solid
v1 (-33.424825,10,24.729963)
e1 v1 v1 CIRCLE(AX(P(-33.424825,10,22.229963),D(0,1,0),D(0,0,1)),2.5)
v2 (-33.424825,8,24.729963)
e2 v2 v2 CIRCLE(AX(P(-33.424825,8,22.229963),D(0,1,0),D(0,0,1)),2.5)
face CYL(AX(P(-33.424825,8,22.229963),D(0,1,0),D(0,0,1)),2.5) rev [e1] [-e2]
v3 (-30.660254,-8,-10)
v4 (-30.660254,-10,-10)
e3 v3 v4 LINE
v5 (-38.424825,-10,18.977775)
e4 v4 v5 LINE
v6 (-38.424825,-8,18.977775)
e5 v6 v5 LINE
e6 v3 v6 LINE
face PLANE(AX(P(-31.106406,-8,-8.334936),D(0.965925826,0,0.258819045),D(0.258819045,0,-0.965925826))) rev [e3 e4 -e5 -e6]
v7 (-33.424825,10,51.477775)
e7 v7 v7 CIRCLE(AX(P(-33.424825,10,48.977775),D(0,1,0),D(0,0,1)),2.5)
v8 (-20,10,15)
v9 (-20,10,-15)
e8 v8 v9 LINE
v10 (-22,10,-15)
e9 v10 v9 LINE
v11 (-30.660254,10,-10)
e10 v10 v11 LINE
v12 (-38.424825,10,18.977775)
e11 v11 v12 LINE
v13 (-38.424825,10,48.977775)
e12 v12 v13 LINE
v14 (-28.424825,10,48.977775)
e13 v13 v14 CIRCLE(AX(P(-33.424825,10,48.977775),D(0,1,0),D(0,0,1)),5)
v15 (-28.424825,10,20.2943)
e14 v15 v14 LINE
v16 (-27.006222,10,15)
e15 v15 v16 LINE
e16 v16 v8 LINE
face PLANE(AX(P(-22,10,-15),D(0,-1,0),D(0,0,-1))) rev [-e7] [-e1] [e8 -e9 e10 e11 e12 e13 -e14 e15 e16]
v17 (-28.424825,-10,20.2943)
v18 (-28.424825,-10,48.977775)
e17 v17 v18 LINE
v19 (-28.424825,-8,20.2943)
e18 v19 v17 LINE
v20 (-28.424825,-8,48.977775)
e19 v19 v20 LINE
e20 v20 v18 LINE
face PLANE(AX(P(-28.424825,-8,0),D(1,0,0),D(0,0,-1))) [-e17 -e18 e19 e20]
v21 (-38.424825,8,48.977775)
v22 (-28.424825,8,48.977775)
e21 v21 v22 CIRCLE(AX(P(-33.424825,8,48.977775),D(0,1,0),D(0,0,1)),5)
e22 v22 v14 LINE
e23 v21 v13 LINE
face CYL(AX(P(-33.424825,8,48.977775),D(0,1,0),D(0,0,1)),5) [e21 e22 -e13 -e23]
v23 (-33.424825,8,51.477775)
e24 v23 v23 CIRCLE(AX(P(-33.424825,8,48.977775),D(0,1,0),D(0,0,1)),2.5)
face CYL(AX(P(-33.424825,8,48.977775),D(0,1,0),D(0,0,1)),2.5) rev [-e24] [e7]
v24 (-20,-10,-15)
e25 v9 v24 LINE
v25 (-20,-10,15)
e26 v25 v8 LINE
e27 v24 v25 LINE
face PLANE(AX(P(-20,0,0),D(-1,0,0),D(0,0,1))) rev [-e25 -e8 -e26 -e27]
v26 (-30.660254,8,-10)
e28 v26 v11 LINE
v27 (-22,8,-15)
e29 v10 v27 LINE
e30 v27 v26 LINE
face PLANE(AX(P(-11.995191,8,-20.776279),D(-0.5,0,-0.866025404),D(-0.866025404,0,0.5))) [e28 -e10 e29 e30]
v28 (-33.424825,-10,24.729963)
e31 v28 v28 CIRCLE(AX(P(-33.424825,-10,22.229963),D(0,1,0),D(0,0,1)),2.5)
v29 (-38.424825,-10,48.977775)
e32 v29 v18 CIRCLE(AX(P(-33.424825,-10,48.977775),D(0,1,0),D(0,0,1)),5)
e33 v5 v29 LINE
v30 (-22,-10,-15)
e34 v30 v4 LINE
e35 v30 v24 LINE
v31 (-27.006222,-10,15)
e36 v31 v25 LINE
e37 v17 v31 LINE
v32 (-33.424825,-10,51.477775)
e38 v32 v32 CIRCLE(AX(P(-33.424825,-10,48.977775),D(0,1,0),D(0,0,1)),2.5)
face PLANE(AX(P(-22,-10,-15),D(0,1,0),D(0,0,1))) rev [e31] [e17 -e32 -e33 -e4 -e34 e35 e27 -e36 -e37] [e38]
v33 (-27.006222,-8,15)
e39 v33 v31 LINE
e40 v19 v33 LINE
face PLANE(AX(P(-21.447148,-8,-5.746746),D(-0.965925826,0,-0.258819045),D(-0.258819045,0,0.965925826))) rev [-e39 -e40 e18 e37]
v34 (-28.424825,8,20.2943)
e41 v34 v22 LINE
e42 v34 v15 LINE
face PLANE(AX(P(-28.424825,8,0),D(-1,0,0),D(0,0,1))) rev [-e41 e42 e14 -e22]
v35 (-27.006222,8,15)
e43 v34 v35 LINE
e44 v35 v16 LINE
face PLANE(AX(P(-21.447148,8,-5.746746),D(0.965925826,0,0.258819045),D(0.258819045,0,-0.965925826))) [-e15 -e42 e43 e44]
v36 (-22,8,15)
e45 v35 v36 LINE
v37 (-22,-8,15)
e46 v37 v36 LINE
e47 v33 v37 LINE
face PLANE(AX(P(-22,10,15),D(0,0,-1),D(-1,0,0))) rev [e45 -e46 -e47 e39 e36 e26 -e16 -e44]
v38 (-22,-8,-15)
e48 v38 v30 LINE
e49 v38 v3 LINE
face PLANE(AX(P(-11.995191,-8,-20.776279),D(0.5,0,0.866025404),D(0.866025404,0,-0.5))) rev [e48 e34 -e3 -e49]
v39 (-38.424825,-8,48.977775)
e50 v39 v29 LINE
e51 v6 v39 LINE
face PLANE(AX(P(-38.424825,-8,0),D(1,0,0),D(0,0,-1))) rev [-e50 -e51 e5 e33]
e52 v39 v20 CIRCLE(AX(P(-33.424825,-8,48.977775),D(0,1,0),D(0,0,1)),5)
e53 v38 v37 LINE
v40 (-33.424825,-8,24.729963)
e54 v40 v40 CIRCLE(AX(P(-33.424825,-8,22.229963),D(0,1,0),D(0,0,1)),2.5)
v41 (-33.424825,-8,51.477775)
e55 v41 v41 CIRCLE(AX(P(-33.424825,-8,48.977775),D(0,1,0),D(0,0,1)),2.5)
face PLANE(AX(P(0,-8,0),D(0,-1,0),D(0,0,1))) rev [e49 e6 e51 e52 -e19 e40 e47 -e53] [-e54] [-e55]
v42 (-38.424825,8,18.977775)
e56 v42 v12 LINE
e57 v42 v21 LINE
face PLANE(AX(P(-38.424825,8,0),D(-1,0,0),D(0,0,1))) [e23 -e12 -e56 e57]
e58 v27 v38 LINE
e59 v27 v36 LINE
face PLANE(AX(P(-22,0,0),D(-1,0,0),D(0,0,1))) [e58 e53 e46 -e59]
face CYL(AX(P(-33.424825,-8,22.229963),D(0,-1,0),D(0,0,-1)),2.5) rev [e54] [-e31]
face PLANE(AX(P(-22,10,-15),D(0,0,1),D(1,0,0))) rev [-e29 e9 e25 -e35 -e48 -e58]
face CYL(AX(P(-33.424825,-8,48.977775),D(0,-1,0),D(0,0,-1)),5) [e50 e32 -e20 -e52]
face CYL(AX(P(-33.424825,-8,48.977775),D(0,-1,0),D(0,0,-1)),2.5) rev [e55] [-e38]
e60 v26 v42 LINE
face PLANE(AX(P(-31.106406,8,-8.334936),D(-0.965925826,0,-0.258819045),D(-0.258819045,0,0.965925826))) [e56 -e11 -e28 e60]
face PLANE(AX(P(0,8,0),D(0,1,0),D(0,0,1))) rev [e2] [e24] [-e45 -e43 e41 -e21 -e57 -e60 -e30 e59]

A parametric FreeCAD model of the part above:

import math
import FreeCAD as App
import Part
import Sketcher
from FreeCAD import Vector
Q = App.Units.Quantity

doc = App.newDocument("Part")
body = doc.addObject("PartDesign::Body", "Body")

# Sketch on YZ plane
sketch1 = body.newObject("Sketcher::SketchObject", "Sketch")
sketch1.AttachmentSupport = (doc.getObject("YZ_Plane"), [""])
sketch1.MapMode = "FlatFace"
sketch1.AttachmentOffset = App.Placement(Vector(0, 0, -20), App.Rotation())
sketch1.addGeometry([
    Part.LineSegment(Vector(10, -15, 0), Vector(-10, -15, 0)),
    Part.LineSegment(Vector(-10, -15, 0), Vector(-10, 15, 0)),
    Part.LineSegment(Vector(-10, 15, 0), Vector(10, 15, 0)),
    Part.LineSegment(Vector(10, 15, 0), Vector(10, -15, 0)),
], False)
sketch1.addConstraint([
    Sketcher.Constraint("Coincident", 0, 2, 1, 1),
    Sketcher.Constraint("Coincident", 1, 2, 2, 1),
    Sketcher.Constraint("Coincident", 2, 2, 3, 1),
    Sketcher.Constraint("Coincident", 3, 2, 0, 1),
    Sketcher.Constraint("Horizontal", 0),
    Sketcher.Constraint("Vertical", 1),
    Sketcher.Constraint("Horizontal", 2),
    Sketcher.Constraint("Vertical", 3),
    Sketcher.Constraint("Symmetric", 0, 2, 2, 2, -1, 1),
    Sketcher.Constraint("DistanceX", 0, 2, 0, 1, 20.0),
    Sketcher.Constraint("DistanceY", 1, 1, 1, 2, 30.0),
])
pad1 = body.newObject("PartDesign::Pad", "Pad")
pad1.Profile = sketch1
pad1.Length = 2
pad1.Reversed = True

# Sketch on XZ plane
sketch2 = body.newObject("Sketcher::SketchObject", "Sketch001")
sketch2.AttachmentSupport = (doc.getObject("XZ_Plane"), [""])
sketch2.MapMode = "FlatFace"
sketch2.AttachmentOffset = App.Placement(Vector(0, 0, -10), App.Rotation())
sketch2.addGeometry([
    Part.LineSegment(Vector(-22, 15, 0), Vector(-22, -15, 0)),  # 0
    Part.LineSegment(Vector(-22, -15, 0), Vector(-30.7, -10, 0)),  # 1
    Part.LineSegment(Vector(-30.7, -10, 0), Vector(-38.4, 19, 0)),  # 2
    Part.LineSegment(Vector(-38.4, 19, 0), Vector(-38.4, 49, 0)),  # 3
    Part.ArcOfCircle(Part.Circle(Vector(-33.4, 49, 0), Vector(0, 0, 1), 5), math.radians(0), math.radians(180)),  # 4
    Part.LineSegment(Vector(-28.4, 49, 0), Vector(-28.4, 20.3, 0)),  # 5
    Part.LineSegment(Vector(-28.4, 20.3, 0), Vector(-27, 15, 0)),  # 6
    Part.LineSegment(Vector(-27, 15, 0), Vector(-22, 15, 0)),  # 7
    Part.Circle(Vector(-33.4, 49, 0), Vector(0, 0, 1), 2.5),  # 8
    Part.Circle(Vector(-33.4, 22.2, 0), Vector(0, 0, 1), 2.5),  # 9
], False)
sketch2.addConstraint([
    Sketcher.Constraint("Coincident", 0, 2, 1, 1),
    Sketcher.Constraint("Coincident", 1, 2, 2, 1),
    Sketcher.Constraint("Coincident", 2, 2, 3, 1),
    Sketcher.Constraint("Tangent", 3, 2, 4, 2),
    Sketcher.Constraint("Tangent", 4, 1, 5, 1),
    Sketcher.Constraint("Coincident", 5, 2, 6, 1),
    Sketcher.Constraint("Coincident", 6, 2, 7, 1),
    Sketcher.Constraint("Coincident", 7, 2, 0, 1),
    Sketcher.Constraint("Vertical", 0),
    Sketcher.Constraint("Vertical", 3),
    Sketcher.Constraint("Vertical", 5),
    Sketcher.Constraint("Horizontal", 7),
    Sketcher.Constraint("Coincident", 8, 3, 4, 3),
    Sketcher.Constraint("Equal", 8, 9),
    Sketcher.Constraint("Parallel", 2, 6),
    Sketcher.Constraint("Vertical", 8, 3, 9, 3),
    Sketcher.Constraint("Equal", 0, 3),
    Sketcher.Constraint("Diameter", 8, 5.0),
    Sketcher.Constraint("Radius", 4, 5.0),
    Sketcher.Constraint("DistanceY", 0, 2, 0, 1, 30.0),
    Sketcher.Constraint("Angle", 1, Q("150 deg")),
    Sketcher.Constraint("Angle", 2, Q("105 deg")),
    Sketcher.Constraint("Distance", 1, 10.0),
    Sketcher.Constraint("Distance", 2, 30.0),
    Sketcher.Constraint("DistanceX", 0, 2, -1, 1, 22.0),
    Sketcher.Constraint("DistanceY", 0, 2, -1, 1, 15.0),
    Sketcher.Constraint("DistanceY", -1, 1, 5, 2, 20.2943),
    Sketcher.Constraint("DistanceY", -1, 1, 9, 3, 22.229963),
])
pad2 = body.newObject("PartDesign::Pad", "Pad001")
pad2.Profile = sketch2
pad2.Length = 2
doc.recompute()

mirrored = body.newObject("PartDesign::Mirrored", "Mirrored")
mirrored.Originals = [pad2]
mirrored.MirrorPlane = (doc.getObject("XZ_Plane"), [""])
body.Tip = mirrored

doc.recompute()
